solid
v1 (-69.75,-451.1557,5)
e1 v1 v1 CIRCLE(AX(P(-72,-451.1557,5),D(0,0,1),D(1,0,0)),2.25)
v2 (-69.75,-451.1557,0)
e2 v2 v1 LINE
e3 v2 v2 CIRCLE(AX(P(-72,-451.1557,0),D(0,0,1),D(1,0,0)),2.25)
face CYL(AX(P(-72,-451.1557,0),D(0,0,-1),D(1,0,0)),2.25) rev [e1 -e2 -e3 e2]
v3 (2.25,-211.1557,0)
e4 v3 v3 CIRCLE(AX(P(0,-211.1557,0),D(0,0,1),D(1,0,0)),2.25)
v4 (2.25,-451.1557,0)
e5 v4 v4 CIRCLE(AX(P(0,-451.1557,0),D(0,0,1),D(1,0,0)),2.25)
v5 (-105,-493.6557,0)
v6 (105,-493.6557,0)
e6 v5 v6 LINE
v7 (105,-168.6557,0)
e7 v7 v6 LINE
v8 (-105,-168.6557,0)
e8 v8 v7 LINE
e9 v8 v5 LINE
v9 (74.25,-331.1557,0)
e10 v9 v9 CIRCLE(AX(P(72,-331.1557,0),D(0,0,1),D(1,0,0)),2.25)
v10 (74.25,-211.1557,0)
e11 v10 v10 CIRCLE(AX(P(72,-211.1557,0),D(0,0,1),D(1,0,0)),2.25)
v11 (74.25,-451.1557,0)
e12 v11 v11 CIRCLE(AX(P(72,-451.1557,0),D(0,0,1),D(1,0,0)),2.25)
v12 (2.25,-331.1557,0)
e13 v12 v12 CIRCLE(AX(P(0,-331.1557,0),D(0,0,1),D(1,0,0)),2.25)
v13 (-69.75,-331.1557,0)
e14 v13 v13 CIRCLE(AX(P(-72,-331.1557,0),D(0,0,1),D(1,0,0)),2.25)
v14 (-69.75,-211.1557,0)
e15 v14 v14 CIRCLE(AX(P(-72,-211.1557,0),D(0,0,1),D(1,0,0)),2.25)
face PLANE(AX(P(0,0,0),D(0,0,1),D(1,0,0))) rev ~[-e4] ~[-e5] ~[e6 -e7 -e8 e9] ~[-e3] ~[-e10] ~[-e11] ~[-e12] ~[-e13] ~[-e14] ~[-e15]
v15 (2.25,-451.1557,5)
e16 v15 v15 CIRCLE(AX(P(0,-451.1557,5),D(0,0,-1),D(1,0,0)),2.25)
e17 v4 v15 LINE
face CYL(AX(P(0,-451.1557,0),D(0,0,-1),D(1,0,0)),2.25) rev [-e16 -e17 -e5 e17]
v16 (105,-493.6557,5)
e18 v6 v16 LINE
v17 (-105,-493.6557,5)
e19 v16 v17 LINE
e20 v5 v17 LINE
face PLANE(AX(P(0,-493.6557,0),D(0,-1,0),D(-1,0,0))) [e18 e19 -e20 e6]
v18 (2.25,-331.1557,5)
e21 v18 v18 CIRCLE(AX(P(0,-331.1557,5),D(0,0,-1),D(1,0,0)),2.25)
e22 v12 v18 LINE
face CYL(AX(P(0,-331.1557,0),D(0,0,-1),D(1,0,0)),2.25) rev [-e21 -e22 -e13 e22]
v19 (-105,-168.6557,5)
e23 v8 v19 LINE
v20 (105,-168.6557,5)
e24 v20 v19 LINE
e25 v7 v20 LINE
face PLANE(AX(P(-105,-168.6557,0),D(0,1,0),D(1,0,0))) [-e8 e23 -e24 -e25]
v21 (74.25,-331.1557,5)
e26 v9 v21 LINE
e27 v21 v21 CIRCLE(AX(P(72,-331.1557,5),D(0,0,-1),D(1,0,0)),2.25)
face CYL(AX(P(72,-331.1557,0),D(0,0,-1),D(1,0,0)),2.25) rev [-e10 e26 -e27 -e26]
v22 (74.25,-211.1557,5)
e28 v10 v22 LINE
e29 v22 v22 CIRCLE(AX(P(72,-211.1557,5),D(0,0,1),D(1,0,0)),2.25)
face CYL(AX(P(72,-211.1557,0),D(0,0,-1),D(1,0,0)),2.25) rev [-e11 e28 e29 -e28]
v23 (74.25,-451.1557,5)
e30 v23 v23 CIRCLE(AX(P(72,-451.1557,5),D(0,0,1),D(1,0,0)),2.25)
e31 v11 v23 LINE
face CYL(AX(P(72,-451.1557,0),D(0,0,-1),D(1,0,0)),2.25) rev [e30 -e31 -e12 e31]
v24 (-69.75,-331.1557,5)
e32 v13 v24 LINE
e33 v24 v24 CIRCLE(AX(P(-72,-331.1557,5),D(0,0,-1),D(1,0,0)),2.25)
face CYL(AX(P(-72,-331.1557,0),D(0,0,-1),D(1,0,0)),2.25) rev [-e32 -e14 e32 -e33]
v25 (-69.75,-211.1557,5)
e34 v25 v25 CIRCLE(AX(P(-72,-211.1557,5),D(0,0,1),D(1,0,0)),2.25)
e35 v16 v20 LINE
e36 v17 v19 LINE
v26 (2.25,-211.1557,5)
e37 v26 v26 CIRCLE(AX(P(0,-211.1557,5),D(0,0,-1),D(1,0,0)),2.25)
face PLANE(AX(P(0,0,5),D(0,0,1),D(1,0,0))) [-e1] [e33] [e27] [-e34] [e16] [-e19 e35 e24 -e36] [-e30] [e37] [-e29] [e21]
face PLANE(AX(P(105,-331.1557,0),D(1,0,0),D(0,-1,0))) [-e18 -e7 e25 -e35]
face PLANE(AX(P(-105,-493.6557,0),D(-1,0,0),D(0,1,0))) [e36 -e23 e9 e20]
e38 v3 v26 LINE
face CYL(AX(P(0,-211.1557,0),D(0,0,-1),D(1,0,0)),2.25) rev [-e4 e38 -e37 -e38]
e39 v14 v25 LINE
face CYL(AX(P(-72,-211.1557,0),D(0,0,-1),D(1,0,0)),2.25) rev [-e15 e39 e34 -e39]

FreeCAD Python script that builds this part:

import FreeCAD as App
import Part
import Sketcher

V = App.Vector

doc = App.newDocument("Part")
body = doc.addObject("PartDesign::Body", "Body")

# Sketch on XY plane
sketch1 = body.newObject("Sketcher::SketchObject", "Sketch")
sketch1.AttachmentSupport = (doc.getObject("XY_Plane"), [""])
sketch1.MapMode = "FlatFace"
sketch1.addGeometry([
    Part.LineSegment(V(-105, -493.6557, 0), V(105, -493.6557, 0)),  # 0
    Part.LineSegment(V(105, -493.6557, 0), V(105, -168.6557, 0)),  # 1
    Part.LineSegment(V(105, -168.6557, 0), V(-105, -168.6557, 0)),  # 2
    Part.LineSegment(V(-105, -168.6557, 0), V(-105, -493.6557, 0)),  # 3
    Part.Circle(V(-72, -331.1557, 0), V(0, 0, 1), 2.25),  # 4
    Part.Circle(V(0, -331.1557, 0), V(0, 0, 1), 2.25),  # 5
    Part.Circle(V(0, -451.1557, 0), V(0, 0, 1), 2.25),  # 6
    Part.Circle(V(-72, -451.1557, 0), V(0, 0, 1), 2.25),  # 7
    Part.Circle(V(0, -211.1557, 0), V(0, 0, 1), 2.25),  # 8
    Part.Circle(V(-72, -211.1557, 0), V(0, 0, 1), 2.25),  # 9
    Part.Circle(V(72, -451.1557, 0), V(0, 0, 1), 2.25),  # 10
    Part.Circle(V(72, -331.1557, 0), V(0, 0, 1), 2.25),  # 11
    Part.Circle(V(72, -211.1557, 0), V(0, 0, 1), 2.25),  # 12
], False)
sketch1.addConstraint([
    Sketcher.Constraint("Coincident", 0, 2, 1, 1),
    Sketcher.Constraint("Coincident", 1, 2, 2, 1),
    Sketcher.Constraint("Coincident", 2, 2, 3, 1),
    Sketcher.Constraint("Coincident", 3, 2, 0, 1),
    Sketcher.Constraint("Horizontal", 0),
    Sketcher.Constraint("Vertical", 1),
    Sketcher.Constraint("Horizontal", 2),
    Sketcher.Constraint("Vertical", 3),
    Sketcher.Constraint("Equal", 4, 5),
    Sketcher.Constraint("Equal", 5, 6),
    Sketcher.Constraint("Equal", 6, 7),
    Sketcher.Constraint("Equal", 7, 8),
    Sketcher.Constraint("Equal", 8, 9),
    Sketcher.Constraint("Equal", 9, 10),
    Sketcher.Constraint("Equal", 10, 11),
    Sketcher.Constraint("Equal", 11, 12),
    Sketcher.Constraint("Symmetric", 7, 3, 10, 3, -2),
    Sketcher.Constraint("Symmetric", 4, 3, 11, 3, -2),
    Sketcher.Constraint("Symmetric", 9, 3, 12, 3, -2),
    Sketcher.Constraint("PointOnObject", 5, 3, -2),
    Sketcher.Constraint("PointOnObject", 6, 3, -2),
    Sketcher.Constraint("PointOnObject", 8, 3, -2),
    Sketcher.Constraint("Horizontal", 4, 3, 5, 3),
    Sketcher.Constraint("Horizontal", 6, 3, 7, 3),
    Sketcher.Constraint("Horizontal", 8, 3, 9, 3),
    Sketcher.Constraint("Vertical", 4, 3, 7, 3),
    Sketcher.Constraint("Vertical", 7, 3, 9, 3),
    Sketcher.Constraint("DistanceY", 1, 1, 1, 2, 325.0),
    Sketcher.Constraint("Diameter", 4, 4.5),
    Sketcher.Constraint("DistanceX", 0, 1, 0, 2, 210.0),
    Sketcher.Constraint("DistanceX", 4, 3, -1, 1, 72.0),
    Sketcher.Constraint("DistanceX", -1, 1, 0, 2, 105.0),
    Sketcher.Constraint("DistanceY", 6, 3, 5, 3, 120.0),
    Sketcher.Constraint("DistanceY", 5, 3, 8, 3, 120.0),
    Sketcher.Constraint("DistanceY", 0, 2, 10, 3, 42.5),
    Sketcher.Constraint("DistanceY", 4, 3, -1, 1, 331.1557),
])
pad1 = body.newObject("PartDesign::Pad", "Pad")
pad1.Profile = sketch1
pad1.Length = 5

doc.recompute()
